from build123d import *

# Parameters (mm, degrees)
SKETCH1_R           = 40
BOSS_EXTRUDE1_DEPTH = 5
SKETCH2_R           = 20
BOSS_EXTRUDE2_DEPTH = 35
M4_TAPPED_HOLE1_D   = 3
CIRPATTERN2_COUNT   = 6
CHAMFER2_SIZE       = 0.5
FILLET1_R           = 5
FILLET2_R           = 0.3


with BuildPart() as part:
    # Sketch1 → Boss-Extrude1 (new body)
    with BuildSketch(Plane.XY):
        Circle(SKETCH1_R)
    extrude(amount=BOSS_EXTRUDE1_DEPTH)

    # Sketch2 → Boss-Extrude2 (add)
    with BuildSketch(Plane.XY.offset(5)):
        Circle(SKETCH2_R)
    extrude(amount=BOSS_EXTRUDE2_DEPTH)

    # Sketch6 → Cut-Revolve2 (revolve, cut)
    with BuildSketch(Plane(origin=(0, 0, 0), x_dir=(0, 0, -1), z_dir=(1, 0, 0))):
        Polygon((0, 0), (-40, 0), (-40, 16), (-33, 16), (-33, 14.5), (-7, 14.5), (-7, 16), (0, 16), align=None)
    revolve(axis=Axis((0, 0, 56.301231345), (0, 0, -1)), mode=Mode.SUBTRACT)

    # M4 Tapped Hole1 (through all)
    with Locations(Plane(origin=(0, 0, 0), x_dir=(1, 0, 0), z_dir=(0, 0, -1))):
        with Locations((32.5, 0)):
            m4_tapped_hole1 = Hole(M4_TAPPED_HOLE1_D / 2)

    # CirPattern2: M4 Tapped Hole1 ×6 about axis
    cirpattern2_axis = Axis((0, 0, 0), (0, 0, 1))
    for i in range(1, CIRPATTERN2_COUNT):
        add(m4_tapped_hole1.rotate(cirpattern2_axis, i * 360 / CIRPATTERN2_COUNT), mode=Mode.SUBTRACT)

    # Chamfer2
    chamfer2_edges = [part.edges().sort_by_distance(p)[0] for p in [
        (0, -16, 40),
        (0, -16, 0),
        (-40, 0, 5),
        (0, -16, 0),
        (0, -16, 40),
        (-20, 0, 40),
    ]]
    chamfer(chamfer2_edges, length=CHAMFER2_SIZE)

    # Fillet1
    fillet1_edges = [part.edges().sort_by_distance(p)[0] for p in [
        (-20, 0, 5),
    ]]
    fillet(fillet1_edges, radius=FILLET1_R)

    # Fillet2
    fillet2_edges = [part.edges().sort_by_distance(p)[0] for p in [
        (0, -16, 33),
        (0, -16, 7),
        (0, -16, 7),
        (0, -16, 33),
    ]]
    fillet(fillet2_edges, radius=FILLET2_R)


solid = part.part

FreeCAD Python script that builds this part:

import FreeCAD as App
import Part
import Sketcher

V = App.Vector
Q = App.Units.Quantity


def edges_at(feature, points):
    """Names of the edges that pass closest to the given points."""
    edges = feature.Shape.Edges
    near = lambda p: min(range(len(edges)), key=lambda i: edges[i].distToShape(Part.Vertex(*p))[0])
    return sorted({f"Edge{near(p) + 1}" for p in points})

doc = App.newDocument("Part")
body = doc.addObject("PartDesign::Body", "Body")

sketch1 = body.newObject("Sketcher::SketchObject", "Sketch")
sketch1.AttachmentSupport = (doc.getObject("XY_Plane"), [""])
sketch1.MapMode = "FlatFace"
sketch1.addGeometry(Part.Circle(V(0, 0, 0), V(0, 0, 1), 40), False)
sketch1.addConstraint([
    Sketcher.Constraint("Coincident", 0, 3, -1, 1),
    Sketcher.Constraint("Diameter", 0, Q("80 mm")),
])
pad1 = body.newObject("PartDesign::Pad", "Pad")
pad1.Profile = sketch1
pad1.Length = 5

sketch2 = body.newObject("Sketcher::SketchObject", "Sketch001")
sketch2.AttachmentSupport = (doc.getObject("XY_Plane"), [""])
sketch2.MapMode = "FlatFace"
sketch2.AttachmentOffset = App.Placement(V(0, 0, 5), App.Rotation())
sketch2.addGeometry(Part.Circle(V(0, 0, 0), V(0, 0, 1), 20), False)
sketch2.addConstraint([
    Sketcher.Constraint("Coincident", 0, 3, -1, 1),
    Sketcher.Constraint("Diameter", 0, Q("40 mm")),
])
pad2 = body.newObject("PartDesign::Pad", "Pad001")
pad2.Profile = sketch2
pad2.Length = 35

sketch3 = body.newObject("Sketcher::SketchObject", "Sketch002")
sketch3.AttachmentSupport = (doc.getObject("YZ_Plane"), [""])
sketch3.MapMode = "FlatFace"
sketch3.addGeometry([
    Part.LineSegment(V(0, 40, 0), V(0, 0, 0)),
    Part.LineSegment(V(0, 0, 0), V(16, 0, 0)),
    Part.LineSegment(V(16, 0, 0), V(16, 7, 0)),
    Part.LineSegment(V(16, 7, 0), V(14.5, 7, 0)),
    Part.LineSegment(V(14.5, 7, 0), V(14.5, 33, 0)),
    Part.LineSegment(V(14.5, 33, 0), V(16, 33, 0)),
    Part.LineSegment(V(16, 33, 0), V(16, 40, 0)),
    Part.LineSegment(V(16, 40, 0), V(0, 40, 0)),
], False)
sketch3.addConstraint([
    Sketcher.Constraint("Coincident", 0, 2, 1, 1),
    Sketcher.Constraint("Coincident", 1, 2, 2, 1),
    Sketcher.Constraint("Coincident", 2, 2, 3, 1),
    Sketcher.Constraint("Coincident", 3, 2, 4, 1),
    Sketcher.Constraint("Coincident", 4, 2, 5, 1),
    Sketcher.Constraint("Coincident", 5, 2, 6, 1),
    Sketcher.Constraint("Coincident", 6, 2, 7, 1),
    Sketcher.Constraint("Coincident", 7, 2, 0, 1),
    Sketcher.Constraint("Vertical", 0),
    Sketcher.Constraint("Horizontal", 1),
    Sketcher.Constraint("Vertical", 2),
    Sketcher.Constraint("Horizontal", 3),
    Sketcher.Constraint("Vertical", 4),
    Sketcher.Constraint("Horizontal", 5),
    Sketcher.Constraint("Vertical", 6),
    Sketcher.Constraint("Horizontal", 7),
    Sketcher.Constraint("Coincident", 0, 2, -1, 1),
    Sketcher.Constraint("Vertical", 2, 2, 5, 2),
    Sketcher.Constraint("Equal", 2, 6),
    Sketcher.Constraint("DistanceX", 1, 1, 1, 2, Q("16 mm")),
    Sketcher.Constraint("DistanceY", 0, 2, 0, 1, Q("40 mm")),
    Sketcher.Constraint("DistanceY", 2, 1, 2, 2, Q("7 mm")),
    Sketcher.Constraint("DistanceX", 3, 2, 3, 1, Q("1.5 mm")),
])
groove = body.newObject("PartDesign::Groove", "Groove")
groove.Profile = sketch3
groove.ReferenceAxis = (sketch3, ["V_Axis"])
groove.Angle = 360

sketch4 = body.newObject("Sketcher::SketchObject", "Sketch003")
sketch4.AttachmentSupport = (doc.getObject("XY_Plane"), [""])
sketch4.MapMode = "FlatFace"
sketch4.addGeometry(Part.Circle(V(32.5, 0, 0), V(0, 0, 1), 1.5), False)
sketch4.addConstraint([
    Sketcher.Constraint("PointOnObject", 0, 3, -1),
    Sketcher.Constraint("Diameter", 0, Q("3 mm")),
    Sketcher.Constraint("DistanceX", -1, 1, 0, 3, Q("32.5 mm")),
])
doc.recompute()
hole = body.newObject("PartDesign::Hole", "Hole")
hole.Profile = sketch4
hole.ThreadType = "None"
hole.Diameter = 3
hole.DepthType = "ThroughAll"
hole.Reversed = True
doc.recompute()

polarpattern = body.newObject("PartDesign::PolarPattern", "PolarPattern")
polarpattern.Originals = [hole]
polarpattern.Axis = (doc.getObject("Z_Axis"), [""])
polarpattern.Angle = 360
polarpattern.Occurrences = 6
body.Tip = polarpattern
doc.recompute()

chamfer = body.newObject("PartDesign::Chamfer", "Chamfer")
chamfer.Base = (polarpattern, edges_at(polarpattern, [
    (0, -16, 40),
    (0, -16, 0),
    (-40, 0, 5),
    (0, -16, 0),
    (0, -16, 40),
    (-20, 0, 40),
]))
chamfer.Size = 0.5
doc.recompute()

fillet = body.newObject("PartDesign::Fillet", "Fillet")
fillet.Base = (chamfer, edges_at(chamfer, [(-20, 0, 5)]))
fillet.Radius = 5
doc.recompute()

fillet2 = body.newObject("PartDesign::Fillet", "Fillet001")
fillet2.Base = (fillet, edges_at(fillet, [
    (0, -16, 33),
    (0, -16, 7),
    (0, -16, 7),
    (0, -16, 33),
]))
fillet2.Radius = 0.3

doc.recompute()
